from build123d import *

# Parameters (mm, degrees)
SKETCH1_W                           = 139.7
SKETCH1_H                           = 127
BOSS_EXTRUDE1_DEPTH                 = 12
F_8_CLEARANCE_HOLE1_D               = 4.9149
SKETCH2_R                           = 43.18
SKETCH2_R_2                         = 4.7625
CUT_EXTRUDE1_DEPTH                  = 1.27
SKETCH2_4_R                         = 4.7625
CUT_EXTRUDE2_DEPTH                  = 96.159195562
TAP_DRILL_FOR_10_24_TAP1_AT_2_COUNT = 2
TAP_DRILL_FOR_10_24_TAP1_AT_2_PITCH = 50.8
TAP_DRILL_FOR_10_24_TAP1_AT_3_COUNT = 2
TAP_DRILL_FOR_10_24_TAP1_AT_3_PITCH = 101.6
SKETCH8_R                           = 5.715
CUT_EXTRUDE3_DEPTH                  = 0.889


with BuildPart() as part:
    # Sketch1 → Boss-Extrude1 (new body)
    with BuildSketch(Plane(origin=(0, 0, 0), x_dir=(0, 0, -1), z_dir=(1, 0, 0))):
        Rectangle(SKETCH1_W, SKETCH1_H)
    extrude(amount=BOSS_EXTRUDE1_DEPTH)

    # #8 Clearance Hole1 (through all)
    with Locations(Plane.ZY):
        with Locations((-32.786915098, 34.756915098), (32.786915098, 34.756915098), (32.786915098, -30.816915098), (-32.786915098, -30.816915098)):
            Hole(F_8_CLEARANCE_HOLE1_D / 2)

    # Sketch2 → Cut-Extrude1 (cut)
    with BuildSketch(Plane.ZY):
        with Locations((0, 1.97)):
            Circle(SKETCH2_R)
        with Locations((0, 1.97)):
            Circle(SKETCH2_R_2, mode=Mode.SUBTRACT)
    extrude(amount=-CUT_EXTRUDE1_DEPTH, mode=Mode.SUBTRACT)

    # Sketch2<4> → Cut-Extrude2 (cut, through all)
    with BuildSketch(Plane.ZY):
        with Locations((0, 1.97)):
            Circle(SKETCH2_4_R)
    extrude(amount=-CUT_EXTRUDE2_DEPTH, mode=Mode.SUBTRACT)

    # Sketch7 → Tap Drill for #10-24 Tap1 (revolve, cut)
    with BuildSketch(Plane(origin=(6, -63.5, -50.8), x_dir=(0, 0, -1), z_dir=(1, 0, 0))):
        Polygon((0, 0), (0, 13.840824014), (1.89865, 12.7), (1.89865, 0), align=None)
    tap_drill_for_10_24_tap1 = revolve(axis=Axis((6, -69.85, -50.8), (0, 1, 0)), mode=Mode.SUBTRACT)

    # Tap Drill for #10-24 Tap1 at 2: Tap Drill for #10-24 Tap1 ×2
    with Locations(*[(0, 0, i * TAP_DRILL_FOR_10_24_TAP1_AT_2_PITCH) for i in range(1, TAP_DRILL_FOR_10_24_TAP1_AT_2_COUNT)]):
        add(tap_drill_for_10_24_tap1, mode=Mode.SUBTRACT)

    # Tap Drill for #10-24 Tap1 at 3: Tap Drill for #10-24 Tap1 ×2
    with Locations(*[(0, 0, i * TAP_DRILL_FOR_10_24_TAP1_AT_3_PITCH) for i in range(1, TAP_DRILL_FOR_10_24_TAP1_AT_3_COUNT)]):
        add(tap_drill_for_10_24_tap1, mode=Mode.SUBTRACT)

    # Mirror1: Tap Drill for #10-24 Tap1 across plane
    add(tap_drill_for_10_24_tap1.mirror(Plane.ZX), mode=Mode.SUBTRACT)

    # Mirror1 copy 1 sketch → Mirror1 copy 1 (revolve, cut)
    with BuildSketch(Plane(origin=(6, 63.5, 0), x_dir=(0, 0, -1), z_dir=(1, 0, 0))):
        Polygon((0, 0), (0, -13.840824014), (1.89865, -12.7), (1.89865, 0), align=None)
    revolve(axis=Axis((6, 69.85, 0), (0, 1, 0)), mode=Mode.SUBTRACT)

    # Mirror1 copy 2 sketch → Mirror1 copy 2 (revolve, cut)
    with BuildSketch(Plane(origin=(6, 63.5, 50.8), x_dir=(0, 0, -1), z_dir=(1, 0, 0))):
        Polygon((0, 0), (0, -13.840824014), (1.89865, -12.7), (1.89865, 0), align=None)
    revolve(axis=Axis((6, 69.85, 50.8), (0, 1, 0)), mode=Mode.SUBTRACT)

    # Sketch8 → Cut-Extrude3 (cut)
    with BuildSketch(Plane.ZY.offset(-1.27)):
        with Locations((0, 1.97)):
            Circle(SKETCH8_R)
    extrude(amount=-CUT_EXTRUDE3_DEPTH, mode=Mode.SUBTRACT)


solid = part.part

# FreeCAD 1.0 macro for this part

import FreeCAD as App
import Part
import Sketcher
Q = App.Units.Quantity

doc = App.newDocument("Part")
body = doc.addObject("PartDesign::Body", "Body")

sketch1 = body.newObject("Sketcher::SketchObject", "Sketch")
sketch1.AttachmentSupport = (doc.getObject("YZ_Plane"), [""])
sketch1.MapMode = "FlatFace"
sketch1.addGeometry([
    Part.LineSegment(App.Vector(64, 70, 0), App.Vector(-64, 70, 0)),
    Part.LineSegment(App.Vector(-64, 70, 0), App.Vector(-64, -70, 0)),
    Part.LineSegment(App.Vector(-64, -70, 0), App.Vector(64, -70, 0)),
    Part.LineSegment(App.Vector(64, -70, 0), App.Vector(64, 70, 0)),
], False)
sketch1.addConstraint([
    Sketcher.Constraint("Coincident", 0, 2, 1, 1),
    Sketcher.Constraint("Coincident", 1, 2, 2, 1),
    Sketcher.Constraint("Coincident", 2, 2, 3, 1),
    Sketcher.Constraint("Coincident", 3, 2, 0, 1),
    Sketcher.Constraint("Horizontal", 0),
    Sketcher.Constraint("Vertical", 1),
    Sketcher.Constraint("Horizontal", 2),
    Sketcher.Constraint("Vertical", 3),
    Sketcher.Constraint("Symmetric", 0, 2, 2, 2, -1, 1),
    Sketcher.Constraint("DistanceX", 0, 2, 0, 1, Q("5 in")),
    Sketcher.Constraint("DistanceY", 1, 2, 1, 1, Q("5.5 in")),
])
pad1 = body.newObject("PartDesign::Pad", "Pad")
pad1.Profile = sketch1
pad1.Length = 12

sketch2 = body.newObject("Sketcher::SketchObject", "Sketch001")
sketch2.AttachmentSupport = (doc.getObject("YZ_Plane"), [""])
sketch2.MapMode = "FlatFace"
sketch2.addGeometry([
    Part.Circle(App.Vector(34.8, -32.8, 0), App.Vector(0, 0, 1), 2.5),
    Part.Circle(App.Vector(34.8, 32.8, 0), App.Vector(0, 0, 1), 2.5),
    Part.Circle(App.Vector(-30.8, 32.8, 0), App.Vector(0, 0, 1), 2.5),
    Part.Circle(App.Vector(-30.8, -32.8, 0), App.Vector(0, 0, 1), 2.5),
], False)
sketch2.addConstraint([
    Sketcher.Constraint("Equal", 0, 1),
    Sketcher.Constraint("Equal", 1, 2),
    Sketcher.Constraint("Equal", 2, 3),
    Sketcher.Constraint("Symmetric", 0, 3, 1, 3, -1),
    Sketcher.Constraint("Symmetric", 2, 3, 3, 3, -1),
    Sketcher.Constraint("Horizontal", 1, 3, 2, 3),
    Sketcher.Constraint("Diameter", 0, Q("0.1935 in")),
    Sketcher.Constraint("DistanceY", 0, 3, 1, 3, Q("65.57383 mm")),
    Sketcher.Constraint("DistanceX", 2, 3, 1, 3, Q("65.57383 mm")),
    Sketcher.Constraint("DistanceX", -1, 1, 0, 3, Q("34.756915 mm")),
])
doc.recompute()
hole = body.newObject("PartDesign::Hole", "Hole")
hole.Profile = sketch2
hole.ThreadType = "None"
hole.Diameter = Q("0.1935 in")
hole.DepthType = "ThroughAll"
hole.Reversed = True

sketch3 = body.newObject("Sketcher::SketchObject", "Sketch002")
sketch3.AttachmentSupport = (doc.getObject("YZ_Plane"), [""])
sketch3.MapMode = "FlatFace"
sketch3.addGeometry([
    Part.Circle(App.Vector(2, 0, 0), App.Vector(0, 0, 1), 43.2),
    Part.Circle(App.Vector(2, 0, 0), App.Vector(0, 0, 1), 4.8),
], False)
sketch3.addConstraint([
    Sketcher.Constraint("Coincident", 1, 3, 0, 3),
    Sketcher.Constraint("PointOnObject", 0, 3, -1),
    Sketcher.Constraint("Diameter", 0, Q("3.4 in")),
    Sketcher.Constraint("Diameter", 1, Q("0.375 in")),
    Sketcher.Constraint("DistanceX", -1, 1, 0, 3, Q("1.97 mm")),
])
pocket1 = body.newObject("PartDesign::Pocket", "Pocket")
pocket1.Profile = sketch3
pocket1.Length = Q("0.05 in")
pocket1.Reversed = True

sketch4 = body.newObject("Sketcher::SketchObject", "Sketch003")
sketch4.AttachmentSupport = (doc.getObject("YZ_Plane"), [""])
sketch4.MapMode = "FlatFace"
sketch4.addGeometry(Part.Circle(App.Vector(2, 0, 0), App.Vector(0, 0, 1), 4.8), False)
sketch4.addConstraint([
    Sketcher.Constraint("PointOnObject", 0, 3, -1),
    Sketcher.Constraint("Diameter", 0, Q("0.375 in")),
    Sketcher.Constraint("DistanceX", -1, 1, 0, 3, Q("1.97 mm")),
])
pocket2 = body.newObject("PartDesign::Pocket", "Pocket001")
pocket2.Profile = sketch4
pocket2.Type = "ThroughAll"
pocket2.Reversed = True

sketch5 = body.newObject("Sketcher::SketchObject", "Sketch004")
sketch5.AttachmentSupport = (doc.getObject("YZ_Plane"), [""])
sketch5.MapMode = "FlatFace"
sketch5.AttachmentOffset = App.Placement(App.Vector(0, 0, 6), App.Rotation())
sketch5.addGeometry([
    Part.LineSegment(App.Vector(-49.7, -50.8, 0), App.Vector(-63.5, -50.8, 0)),
    Part.LineSegment(App.Vector(-63.5, -50.8, 0), App.Vector(-63.5, -52.7, 0)),
    Part.LineSegment(App.Vector(-63.5, -52.7, 0), App.Vector(-50.8, -52.7, 0)),
    Part.LineSegment(App.Vector(-50.8, -52.7, 0), App.Vector(-49.7, -50.8, 0)),
], False)
sketch5.addGeometry(Part.LineSegment(App.Vector(-63.5, -50.8, 0), App.Vector(-49.7, -50.8, 0)), True)
sketch5.addConstraint([
    Sketcher.Constraint("Coincident", 0, 2, 1, 1),
    Sketcher.Constraint("Coincident", 1, 2, 2, 1),
    Sketcher.Constraint("Coincident", 2, 2, 3, 1),
    Sketcher.Constraint("Coincident", 3, 2, 0, 1),
    Sketcher.Constraint("Horizontal", 0),
    Sketcher.Constraint("Vertical", 1),
    Sketcher.Constraint("Horizontal", 2),
    Sketcher.Constraint("Horizontal", 4),
    Sketcher.Constraint("Coincident", 4, 1, 0, 2),
    Sketcher.Constraint("Equal", 0, 4),
    Sketcher.Constraint("DistanceX", 2, 1, 2, 2, Q("0.5 in")),
    Sketcher.Constraint("DistanceY", 0, 2, -1, 1, Q("2 in")),
    Sketcher.Constraint("DistanceX", 2, 2, -1, 1, Q("2 in")),
    Sketcher.Constraint("Angle", 3, Q("59 deg")),
    Sketcher.Constraint("DistanceY", 1, 2, 1, 1, Q("1.89865 mm")),
])
groove = body.newObject("PartDesign::Groove", "Groove")
groove.Profile = sketch5
groove.ReferenceAxis = (sketch5, ["Axis0"])
groove.Angle = 360
doc.recompute()

linearpattern = body.newObject("PartDesign::LinearPattern", "LinearPattern")
linearpattern.Originals = [groove]
linearpattern.Direction = (doc.getObject("Z_Axis"), [""])
linearpattern.Mode = "offset"
linearpattern.Offset = Q("2 in")
linearpattern.Occurrences = 2
body.Tip = linearpattern
doc.recompute()

linearpattern2 = body.newObject("PartDesign::LinearPattern", "LinearPattern001")
linearpattern2.Originals = [groove]
linearpattern2.Direction = (doc.getObject("Z_Axis"), [""])
linearpattern2.Mode = "offset"
linearpattern2.Offset = Q("4 in")
linearpattern2.Occurrences = 2
body.Tip = linearpattern2
doc.recompute()

mirrored = body.newObject("PartDesign::Mirrored", "Mirrored")
mirrored.Originals = [groove]
mirrored.MirrorPlane = (doc.getObject("XZ_Plane"), [""])
body.Tip = mirrored

sketch6 = body.newObject("Sketcher::SketchObject", "Sketch005")
sketch6.AttachmentSupport = (doc.getObject("YZ_Plane"), [""])
sketch6.MapMode = "FlatFace"
sketch6.AttachmentOffset = App.Placement(App.Vector(0, 0, 6), App.Rotation())
sketch6.addGeometry([
    Part.LineSegment(App.Vector(63.5, 0, 0), App.Vector(49.7, 0, 0)),
    Part.LineSegment(App.Vector(49.7, 0, 0), App.Vector(50.8, -1.9, 0)),
    Part.LineSegment(App.Vector(50.8, -1.9, 0), App.Vector(63.5, -1.9, 0)),
    Part.LineSegment(App.Vector(63.5, -1.9, 0), App.Vector(63.5, 0, 0)),
], False)
sketch6.addConstraint([
    Sketcher.Constraint("Coincident", 0, 2, 1, 1),
    Sketcher.Constraint("Coincident", 1, 2, 2, 1),
    Sketcher.Constraint("Coincident", 2, 2, 3, 1),
    Sketcher.Constraint("Coincident", 3, 2, 0, 1),
    Sketcher.Constraint("Horizontal", 0),
    Sketcher.Constraint("Horizontal", 2),
    Sketcher.Constraint("Vertical", 3),
    Sketcher.Constraint("PointOnObject", 0, 2, -1),
    Sketcher.Constraint("DistanceX", 2, 1, 2, 2, Q("0.5 in")),
    Sketcher.Constraint("DistanceX", -1, 1, 1, 2, Q("2 in")),
    Sketcher.Constraint("Angle", 1, Q("-59 deg")),
    Sketcher.Constraint("DistanceY", 3, 1, 3, 2, Q("1.89865 mm")),
])
groove2 = body.newObject("PartDesign::Groove", "Groove001")
groove2.Profile = sketch6
groove2.ReferenceAxis = (sketch6, ["H_Axis"])
groove2.Angle = 360

sketch7 = body.newObject("Sketcher::SketchObject", "Sketch006")
sketch7.AttachmentSupport = (doc.getObject("YZ_Plane"), [""])
sketch7.MapMode = "FlatFace"
sketch7.AttachmentOffset = App.Placement(App.Vector(0, 0, 6), App.Rotation())
sketch7.addGeometry([
    Part.LineSegment(App.Vector(63.5, 50.8, 0), App.Vector(49.7, 50.8, 0)),
    Part.LineSegment(App.Vector(49.7, 50.8, 0), App.Vector(50.8, 48.9, 0)),
    Part.LineSegment(App.Vector(50.8, 48.9, 0), App.Vector(63.5, 48.9, 0)),
    Part.LineSegment(App.Vector(63.5, 48.9, 0), App.Vector(63.5, 50.8, 0)),
], False)
sketch7.addGeometry(Part.LineSegment(App.Vector(49.7, 50.8, 0), App.Vector(63.5, 50.8, 0)), True)
sketch7.addConstraint([
    Sketcher.Constraint("Coincident", 0, 2, 1, 1),
    Sketcher.Constraint("Coincident", 1, 2, 2, 1),
    Sketcher.Constraint("Coincident", 2, 2, 3, 1),
    Sketcher.Constraint("Coincident", 3, 2, 0, 1),
    Sketcher.Constraint("Horizontal", 0),
    Sketcher.Constraint("Horizontal", 2),
    Sketcher.Constraint("Vertical", 3),
    Sketcher.Constraint("Horizontal", 4),
    Sketcher.Constraint("Coincident", 4, 1, 0, 2),
    Sketcher.Constraint("Vertical", 2, 2, 4, 2),
    Sketcher.Constraint("DistanceX", 2, 1, 2, 2, Q("0.5 in")),
    Sketcher.Constraint("DistanceY", -1, 1, 0, 2, Q("2 in")),
    Sketcher.Constraint("DistanceX", -1, 1, 1, 2, Q("2 in")),
    Sketcher.Constraint("Angle", 1, Q("-59 deg")),
    Sketcher.Constraint("DistanceY", 3, 1, 3, 2, Q("1.89865 mm")),
])
groove3 = body.newObject("PartDesign::Groove", "Groove002")
groove3.Profile = sketch7
groove3.ReferenceAxis = (sketch7, ["Axis0"])
groove3.Angle = 360

sketch8 = body.newObject("Sketcher::SketchObject", "Sketch007")
sketch8.AttachmentSupport = (doc.getObject("YZ_Plane"), [""])
sketch8.MapMode = "FlatFace"
sketch8.AttachmentOffset = App.Placement(App.Vector(0, 0, 0.05 * 25.4), App.Rotation())
sketch8.addGeometry(Part.Circle(App.Vector(2, 0, 0), App.Vector(0, 0, 1), 6), False)
sketch8.addConstraint([
    Sketcher.Constraint("PointOnObject", 0, 3, -1),
    Sketcher.Constraint("Diameter", 0, Q("0.45 in")),
    Sketcher.Constraint("DistanceX", -1, 1, 0, 3, Q("1.97 mm")),
])
pocket3 = body.newObject("PartDesign::Pocket", "Pocket002")
pocket3.Profile = sketch8
pocket3.Length = Q("0.035 in")
pocket3.Reversed = True

doc.recompute()
